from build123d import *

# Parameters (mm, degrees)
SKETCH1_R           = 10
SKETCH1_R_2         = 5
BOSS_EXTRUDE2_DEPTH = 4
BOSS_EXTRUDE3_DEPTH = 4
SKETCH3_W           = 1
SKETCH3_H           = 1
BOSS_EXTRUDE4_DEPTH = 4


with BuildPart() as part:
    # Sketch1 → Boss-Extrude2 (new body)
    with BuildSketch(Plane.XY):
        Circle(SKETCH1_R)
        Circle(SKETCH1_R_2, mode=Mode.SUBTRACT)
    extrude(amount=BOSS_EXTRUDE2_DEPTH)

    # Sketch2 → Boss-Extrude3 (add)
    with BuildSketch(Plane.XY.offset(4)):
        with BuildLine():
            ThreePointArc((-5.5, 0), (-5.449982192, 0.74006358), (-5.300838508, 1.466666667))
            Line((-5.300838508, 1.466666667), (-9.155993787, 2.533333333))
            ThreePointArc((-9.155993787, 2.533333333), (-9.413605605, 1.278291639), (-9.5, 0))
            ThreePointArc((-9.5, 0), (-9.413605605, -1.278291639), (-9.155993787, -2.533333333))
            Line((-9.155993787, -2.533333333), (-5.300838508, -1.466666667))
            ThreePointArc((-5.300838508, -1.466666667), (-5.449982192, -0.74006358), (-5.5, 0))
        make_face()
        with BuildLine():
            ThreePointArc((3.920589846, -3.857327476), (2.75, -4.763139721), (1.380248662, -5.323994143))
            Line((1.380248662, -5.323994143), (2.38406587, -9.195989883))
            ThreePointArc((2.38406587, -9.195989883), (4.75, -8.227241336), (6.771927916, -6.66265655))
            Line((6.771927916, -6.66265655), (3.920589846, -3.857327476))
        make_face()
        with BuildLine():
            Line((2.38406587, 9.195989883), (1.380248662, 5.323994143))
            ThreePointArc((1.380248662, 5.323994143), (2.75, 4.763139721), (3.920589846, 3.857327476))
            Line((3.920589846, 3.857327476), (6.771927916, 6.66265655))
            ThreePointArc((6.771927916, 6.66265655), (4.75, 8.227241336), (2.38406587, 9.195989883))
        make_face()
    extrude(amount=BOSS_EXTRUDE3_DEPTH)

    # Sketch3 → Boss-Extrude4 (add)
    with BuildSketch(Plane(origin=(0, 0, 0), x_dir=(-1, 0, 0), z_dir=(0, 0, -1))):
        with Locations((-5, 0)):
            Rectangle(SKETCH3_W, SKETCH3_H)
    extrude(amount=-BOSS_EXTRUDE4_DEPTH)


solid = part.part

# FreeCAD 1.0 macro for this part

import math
import FreeCAD as App
import Part
import Sketcher

doc = App.newDocument("Part")
params = doc.addObject("Spreadsheet::Sheet", "Params")
for row, (alias, value) in enumerate([
    ("sketch1_diameter", "20 mm"),
    ("sketch1_diameter2", "10 mm"),
    ("pad1_length", "4 mm"),
    ("sketch2_radius", "5.5 mm"),
    ("sketch2_radius2", "9.5 mm"),
    ("pad2_length", "4 mm"),
    ("sketch3_width", "1 mm"),
    ("pad3_length", "4 mm"),
], start=1):
    params.set(f"A{row}", alias)
    params.set(f"B{row}", "=" + value)
    params.setAlias(f"B{row}", alias)

body = doc.addObject("PartDesign::Body", "Body")

# Sketch on XY plane
sketch1 = body.newObject("Sketcher::SketchObject", "Sketch")
sketch1.AttachmentSupport = (doc.getObject("XY_Plane"), [""])
sketch1.MapMode = "FlatFace"
sketch1.addGeometry(Part.Circle(App.Vector(0, 0, 0), App.Vector(0, 0, 1), 10), False)
sketch1.addGeometry(Part.Circle(App.Vector(0, 0, 0), App.Vector(0, 0, 1), 5), False)
sketch1.addConstraint(Sketcher.Constraint("Coincident", 0, 3, -1, 1))
sketch1.addConstraint(Sketcher.Constraint("Coincident", 1, 3, -1, 1))
sketch1.addConstraint(Sketcher.Constraint("Diameter", 0, 20.0))
sketch1.addConstraint(Sketcher.Constraint("Diameter", 1, 10.0))
sketch1.setExpression("Constraints[2]", "Params.sketch1_diameter")
sketch1.setExpression("Constraints[3]", "Params.sketch1_diameter2")
pad1 = body.newObject("PartDesign::Pad", "Pad")
pad1.Profile = sketch1
pad1.setExpression("Length", "Params.pad1_length")

# Sketch on XY plane
sketch2 = body.newObject("Sketcher::SketchObject", "Sketch001")
sketch2.AttachmentSupport = (doc.getObject("XY_Plane"), [""])
sketch2.MapMode = "FlatFace"
sketch2.AttachmentOffset = App.Placement(App.Vector(0, 0, 4), App.Rotation())
sketch2.addGeometry(Part.ArcOfCircle(Part.Circle(App.Vector(0, 0, 0), App.Vector(0, 0, 1), 5.5), math.radians(164.53399), math.radians(180)), False)
sketch2.addGeometry(Part.LineSegment(App.Vector(-5.300839, 1.466667, 0), App.Vector(-9.155994, 2.533333, 0)), False)
sketch2.addGeometry(Part.ArcOfCircle(Part.Circle(App.Vector(0, 0, 0), App.Vector(0, 0, 1), 9.5), math.radians(164.53399), math.radians(180)), False)
sketch2.addGeometry(Part.ArcOfCircle(Part.Circle(App.Vector(0, 0, 0), App.Vector(0, 0, 1), 9.5), math.radians(180), math.radians(195.46601)), False)
sketch2.addGeometry(Part.LineSegment(App.Vector(-9.155994, -2.533333, 0), App.Vector(-5.300839, -1.466667, 0)), False)
sketch2.addGeometry(Part.ArcOfCircle(Part.Circle(App.Vector(0, 0, 0), App.Vector(0, 0, 1), 5.5), math.radians(-180), math.radians(-164.53399)), False)
sketch2.addGeometry(Part.ArcOfCircle(Part.Circle(App.Vector(0, 0, 0), App.Vector(0, 0, 1), 5.5), math.radians(-75.46601), math.radians(-44.53399)), False)
sketch2.addGeometry(Part.LineSegment(App.Vector(1.380249, -5.323994, 0), App.Vector(2.384066, -9.19599, 0)), False)
sketch2.addGeometry(Part.ArcOfCircle(Part.Circle(App.Vector(0, 0, 0), App.Vector(0, 0, 1), 9.5), math.radians(-75.46601), math.radians(-44.53399)), False)
sketch2.addGeometry(Part.LineSegment(App.Vector(6.771928, -6.662657, 0), App.Vector(3.92059, -3.857327, 0)), False)
sketch2.addGeometry(Part.LineSegment(App.Vector(2.384066, 9.19599, 0), App.Vector(1.380249, 5.323994, 0)), False)
sketch2.addGeometry(Part.ArcOfCircle(Part.Circle(App.Vector(0, 0, 0), App.Vector(0, 0, 1), 5.5), math.radians(44.53399), math.radians(75.46601)), False)
sketch2.addGeometry(Part.LineSegment(App.Vector(3.92059, 3.857327, 0), App.Vector(6.771928, 6.662657, 0)), False)
sketch2.addGeometry(Part.ArcOfCircle(Part.Circle(App.Vector(0, 0, 0), App.Vector(0, 0, 1), 9.5), math.radians(44.53399), math.radians(75.46601)), False)
sketch2.addConstraint(Sketcher.Constraint("Coincident", 0, 1, 1, 1))
sketch2.addConstraint(Sketcher.Constraint("Coincident", 1, 2, 2, 1))
sketch2.addConstraint(Sketcher.Constraint("Tangent", 2, 2, 3, 1))
sketch2.addConstraint(Sketcher.Constraint("Coincident", 3, 2, 4, 1))
sketch2.addConstraint(Sketcher.Constraint("Coincident", 4, 2, 5, 2))
sketch2.addConstraint(Sketcher.Constraint("Tangent", 5, 1, 0, 2))
sketch2.addConstraint(Sketcher.Constraint("Coincident", 6, 1, 7, 1))
sketch2.addConstraint(Sketcher.Constraint("Coincident", 7, 2, 8, 1))
sketch2.addConstraint(Sketcher.Constraint("Coincident", 8, 2, 9, 1))
sketch2.addConstraint(Sketcher.Constraint("Coincident", 9, 2, 6, 2))
sketch2.addConstraint(Sketcher.Constraint("Coincident", 10, 2, 11, 2))
sketch2.addConstraint(Sketcher.Constraint("Coincident", 11, 1, 12, 1))
sketch2.addConstraint(Sketcher.Constraint("Coincident", 12, 2, 13, 1))
sketch2.addConstraint(Sketcher.Constraint("Coincident", 13, 2, 10, 1))
sketch2.addConstraint(Sketcher.Constraint("Coincident", 0, 3, -1, 1))
sketch2.addConstraint(Sketcher.Constraint("Coincident", 2, 3, -1, 1))
sketch2.addConstraint(Sketcher.Constraint("Coincident", 6, 3, -1, 1))
sketch2.addConstraint(Sketcher.Constraint("Coincident", 8, 3, -1, 1))
sketch2.addConstraint(Sketcher.Constraint("Coincident", 11, 3, -1, 1))
sketch2.addConstraint(Sketcher.Constraint("Coincident", 13, 3, -1, 1))
sketch2.addConstraint(Sketcher.Constraint("Equal", 2, 3))
sketch2.addConstraint(Sketcher.Constraint("Equal", 0, 5))
sketch2.addConstraint(Sketcher.Constraint("Equal", 5, 6))
sketch2.addConstraint(Sketcher.Constraint("Equal", 3, 8))
sketch2.addConstraint(Sketcher.Constraint("Equal", 6, 11))
sketch2.addConstraint(Sketcher.Constraint("Equal", 8, 13))
sketch2.addConstraint(Sketcher.Constraint("PointOnObject", 2, 2, -1))
sketch2.addConstraint(Sketcher.Constraint("PointOnObject", 5, 1, -1))
sketch2.addConstraint(Sketcher.Constraint("Vertical", 1, 2, 3, 2))
sketch2.addConstraint(Sketcher.Constraint("Vertical", 0, 1, 4, 2))
sketch2.addConstraint(Sketcher.Constraint("Vertical", 6, 1, 10, 2))
sketch2.addConstraint(Sketcher.Constraint("Vertical", 9, 2, 11, 1))
sketch2.addConstraint(Sketcher.Constraint("Vertical", 8, 2, 12, 2))
sketch2.addConstraint(Sketcher.Constraint("Vertical", 7, 2, 13, 2))
sketch2.addConstraint(Sketcher.Constraint("Radius", 0, 5.5))
sketch2.addConstraint(Sketcher.Constraint("Radius", 2, 9.5))
sketch2.addConstraint(Sketcher.Constraint("DistanceY", 3, 2, 0, 1, 4.0))
sketch2.addConstraint(Sketcher.Constraint("DistanceX", 0, 1, -1, 1, 5.300839))
sketch2.addConstraint(Sketcher.Constraint("DistanceX", -1, 1, 6, 1, 1.380249))
sketch2.addConstraint(Sketcher.Constraint("DistanceY", 7, 2, -1, 1, 9.19599))
sketch2.addConstraint(Sketcher.Constraint("DistanceX", -1, 1, 9, 2, 3.92059))
sketch2.addConstraint(Sketcher.Constraint("DistanceX", 6, 1, 8, 2, 5.391679))
sketch2.setExpression("Constraints[34]", "Params.sketch2_radius")
sketch2.setExpression("Constraints[35]", "Params.sketch2_radius2")
pad2 = body.newObject("PartDesign::Pad", "Pad001")
pad2.Profile = sketch2
pad2.setExpression("Length", "Params.pad2_length")

# Sketch on XY plane
sketch3 = body.newObject("Sketcher::SketchObject", "Sketch002")
sketch3.AttachmentSupport = (doc.getObject("XY_Plane"), [""])
sketch3.MapMode = "FlatFace"
sketch3.addGeometry(Part.LineSegment(App.Vector(5.5, 0.5, 0), App.Vector(5.5, -0.5, 0)), False)
sketch3.addGeometry(Part.LineSegment(App.Vector(5.5, -0.5, 0), App.Vector(4.5, -0.5, 0)), False)
sketch3.addGeometry(Part.LineSegment(App.Vector(4.5, -0.5, 0), App.Vector(4.5, 0.5, 0)), False)
sketch3.addGeometry(Part.LineSegment(App.Vector(4.5, 0.5, 0), App.Vector(5.5, 0.5, 0)), False)
sketch3.addConstraint(Sketcher.Constraint("Coincident", 0, 2, 1, 1))
sketch3.addConstraint(Sketcher.Constraint("Coincident", 1, 2, 2, 1))
sketch3.addConstraint(Sketcher.Constraint("Coincident", 2, 2, 3, 1))
sketch3.addConstraint(Sketcher.Constraint("Coincident", 3, 2, 0, 1))
sketch3.addConstraint(Sketcher.Constraint("Vertical", 0))
sketch3.addConstraint(Sketcher.Constraint("Horizontal", 1))
sketch3.addConstraint(Sketcher.Constraint("Vertical", 2))
sketch3.addConstraint(Sketcher.Constraint("Horizontal", 3))
sketch3.addConstraint(Sketcher.Constraint("Equal", 3, 0))
sketch3.addConstraint(Sketcher.Constraint("DistanceX", 1, 2, 1, 1, 1.0))
sketch3.addConstraint(Sketcher.Constraint("DistanceX", -1, 1, 0, 2, 5.5))
sketch3.addConstraint(Sketcher.Constraint("DistanceY", 0, 2, -1, 1, 0.5))
sketch3.setExpression("Constraints[9]", "Params.sketch3_width")
pad3 = body.newObject("PartDesign::Pad", "Pad002")
pad3.Profile = sketch3
pad3.setExpression("Length", "Params.pad3_length")

doc.recompute()
